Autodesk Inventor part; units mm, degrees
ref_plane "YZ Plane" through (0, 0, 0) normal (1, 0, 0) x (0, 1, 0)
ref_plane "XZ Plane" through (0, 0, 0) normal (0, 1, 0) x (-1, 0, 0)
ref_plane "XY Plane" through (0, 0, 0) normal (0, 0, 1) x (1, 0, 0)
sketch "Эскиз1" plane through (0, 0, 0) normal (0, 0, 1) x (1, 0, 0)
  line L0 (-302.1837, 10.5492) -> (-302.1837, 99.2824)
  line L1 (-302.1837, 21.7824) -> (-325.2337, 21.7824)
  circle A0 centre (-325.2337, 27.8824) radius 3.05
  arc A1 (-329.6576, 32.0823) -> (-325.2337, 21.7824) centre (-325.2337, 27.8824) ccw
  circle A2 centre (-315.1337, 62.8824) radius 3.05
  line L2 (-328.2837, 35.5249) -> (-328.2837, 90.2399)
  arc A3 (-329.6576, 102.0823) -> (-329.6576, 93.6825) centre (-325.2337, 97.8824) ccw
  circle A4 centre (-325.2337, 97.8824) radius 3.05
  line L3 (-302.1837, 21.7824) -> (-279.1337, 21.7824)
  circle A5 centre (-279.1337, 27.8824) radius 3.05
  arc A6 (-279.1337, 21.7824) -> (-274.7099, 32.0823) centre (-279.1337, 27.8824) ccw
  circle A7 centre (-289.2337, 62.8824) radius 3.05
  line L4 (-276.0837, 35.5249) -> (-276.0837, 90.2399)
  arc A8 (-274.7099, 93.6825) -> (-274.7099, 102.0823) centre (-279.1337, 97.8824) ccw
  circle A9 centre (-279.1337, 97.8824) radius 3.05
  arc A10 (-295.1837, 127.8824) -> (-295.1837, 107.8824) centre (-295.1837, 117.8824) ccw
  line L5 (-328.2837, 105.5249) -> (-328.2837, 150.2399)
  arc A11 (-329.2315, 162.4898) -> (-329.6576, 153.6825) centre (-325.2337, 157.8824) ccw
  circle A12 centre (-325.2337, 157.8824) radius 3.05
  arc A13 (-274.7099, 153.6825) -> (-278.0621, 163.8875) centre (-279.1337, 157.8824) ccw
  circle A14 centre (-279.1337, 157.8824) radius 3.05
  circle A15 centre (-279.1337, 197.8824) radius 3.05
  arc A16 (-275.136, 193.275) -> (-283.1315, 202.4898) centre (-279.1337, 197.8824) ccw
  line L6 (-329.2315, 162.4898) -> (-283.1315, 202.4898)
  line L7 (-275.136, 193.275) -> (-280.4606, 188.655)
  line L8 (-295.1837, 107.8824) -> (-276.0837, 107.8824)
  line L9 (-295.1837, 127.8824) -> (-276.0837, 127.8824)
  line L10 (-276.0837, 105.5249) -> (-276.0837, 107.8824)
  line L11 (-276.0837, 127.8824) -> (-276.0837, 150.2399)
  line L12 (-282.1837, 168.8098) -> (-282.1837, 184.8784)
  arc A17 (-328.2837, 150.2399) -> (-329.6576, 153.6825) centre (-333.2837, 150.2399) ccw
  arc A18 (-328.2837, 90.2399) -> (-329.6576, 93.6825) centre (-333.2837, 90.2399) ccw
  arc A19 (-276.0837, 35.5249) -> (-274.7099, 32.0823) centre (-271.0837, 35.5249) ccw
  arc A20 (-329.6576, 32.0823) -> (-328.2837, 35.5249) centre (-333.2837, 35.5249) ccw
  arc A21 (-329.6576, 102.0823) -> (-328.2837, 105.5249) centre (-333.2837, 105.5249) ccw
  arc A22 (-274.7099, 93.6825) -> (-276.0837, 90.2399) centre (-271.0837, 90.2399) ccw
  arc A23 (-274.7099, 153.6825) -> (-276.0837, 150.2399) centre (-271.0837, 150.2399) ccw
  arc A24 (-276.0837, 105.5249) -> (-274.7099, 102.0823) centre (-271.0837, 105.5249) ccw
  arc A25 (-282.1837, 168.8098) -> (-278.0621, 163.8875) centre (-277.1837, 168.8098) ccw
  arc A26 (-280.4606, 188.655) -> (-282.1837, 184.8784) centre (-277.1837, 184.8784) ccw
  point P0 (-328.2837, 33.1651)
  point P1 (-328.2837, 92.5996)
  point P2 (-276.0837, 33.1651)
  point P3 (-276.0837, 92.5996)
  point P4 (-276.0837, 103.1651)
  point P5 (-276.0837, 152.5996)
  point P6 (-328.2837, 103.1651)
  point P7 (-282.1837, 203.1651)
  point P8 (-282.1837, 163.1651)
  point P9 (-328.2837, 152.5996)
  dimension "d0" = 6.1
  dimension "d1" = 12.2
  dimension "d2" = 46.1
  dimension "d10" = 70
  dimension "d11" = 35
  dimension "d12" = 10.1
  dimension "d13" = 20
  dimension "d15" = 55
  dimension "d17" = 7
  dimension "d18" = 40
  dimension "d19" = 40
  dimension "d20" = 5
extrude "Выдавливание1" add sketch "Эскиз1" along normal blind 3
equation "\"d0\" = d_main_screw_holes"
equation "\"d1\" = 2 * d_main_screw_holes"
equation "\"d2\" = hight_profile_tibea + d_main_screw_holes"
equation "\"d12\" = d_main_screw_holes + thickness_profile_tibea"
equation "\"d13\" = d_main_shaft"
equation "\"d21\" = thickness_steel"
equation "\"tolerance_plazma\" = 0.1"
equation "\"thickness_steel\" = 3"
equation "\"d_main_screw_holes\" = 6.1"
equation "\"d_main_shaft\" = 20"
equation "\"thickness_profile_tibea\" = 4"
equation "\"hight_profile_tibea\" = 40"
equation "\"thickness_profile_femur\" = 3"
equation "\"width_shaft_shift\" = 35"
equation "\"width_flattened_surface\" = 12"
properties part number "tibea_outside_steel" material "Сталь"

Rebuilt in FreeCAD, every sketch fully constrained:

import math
import FreeCAD as App
import Part
import Sketcher
from FreeCAD import Vector
Q = App.Units.Quantity

doc = App.newDocument("Part")
params = doc.addObject("Spreadsheet::Sheet", "Params")
for row, (alias, value) in enumerate([
    ("sketch1_radius", "5 mm"),
    ("sketch1_radius2", "10 mm"),
    ("sketch1_diameter", "6.1 mm"),
    ("sketch1_radius3", "6.1 mm"),
    ("sketch1_width", "46.1 mm"),
    ("pad1_length", "3 mm"),
], start=1):
    params.set(f"A{row}", alias)
    params.set(f"B{row}", "=" + value)
    params.setAlias(f"B{row}", alias)

body = doc.addObject("PartDesign::Body", "Body")

# Sketch on XY plane
sketch1 = body.newObject("Sketcher::SketchObject", "Sketch")
sketch1.AttachmentSupport = (doc.getObject("XY_Plane"), [""])
sketch1.MapMode = "FlatFace"
sketch1.addGeometry(Part.LineSegment(Vector(-325.2337, 21.7824, 0), Vector(-279.1337, 21.7824, 0)), False)
sketch1.addGeometry(Part.ArcOfCircle(Part.Circle(Vector(-279.1337, 27.8824, 0), Vector(0, 0, 1), 6.1), math.radians(-90), math.radians(43.512745)), False)
sketch1.addGeometry(Part.ArcOfCircle(Part.Circle(Vector(-271.0837, 35.5249, 0), Vector(0, 0, 1), 5), math.radians(180), math.radians(223.512175)), False)
sketch1.addGeometry(Part.LineSegment(Vector(-276.0837, 35.5249, 0), Vector(-276.0837, 90.2399, 0)), False)
sketch1.addGeometry(Part.ArcOfCircle(Part.Circle(Vector(-271.0837, 90.2399, 0), Vector(0, 0, 1), 5.000082), math.radians(136.487825), math.radians(180)), False)
sketch1.addGeometry(Part.ArcOfCircle(Part.Circle(Vector(-279.1337, 97.8824, 0), Vector(0, 0, 1), 6.099932), math.radians(-43.512745), math.radians(43.512745)), False)
sketch1.addGeometry(Part.ArcOfCircle(Part.Circle(Vector(-271.0837, 105.5249, 0), Vector(0, 0, 1), 5), math.radians(180), math.radians(223.512175)), False)
sketch1.addGeometry(Part.LineSegment(Vector(-276.0837, 105.5249, 0), Vector(-276.0837, 107.8824, 0)), False)
sketch1.addGeometry(Part.LineSegment(Vector(-276.0837, 107.8824, 0), Vector(-295.1837, 107.8824, 0)), False)
sketch1.addGeometry(Part.ArcOfCircle(Part.Circle(Vector(-295.1837, 117.8824, 0), Vector(0, 0, 1), 10), math.radians(90), math.radians(270)), False)
sketch1.addGeometry(Part.LineSegment(Vector(-295.1837, 127.8824, 0), Vector(-276.0837, 127.8824, 0)), False)
sketch1.addGeometry(Part.LineSegment(Vector(-276.0837, 127.8824, 0), Vector(-276.0837, 150.2399, 0)), False)
sketch1.addGeometry(Part.ArcOfCircle(Part.Circle(Vector(-271.0837, 150.2399, 0), Vector(0, 0, 1), 5.000082), math.radians(136.487825), math.radians(180)), False)
sketch1.addGeometry(Part.ArcOfCircle(Part.Circle(Vector(-279.1337, 157.8824, 0), Vector(0, 0, 1), 6.099932), math.radians(-43.512745), math.radians(79.882164)), False)
sketch1.addGeometry(Part.ArcOfCircle(Part.Circle(Vector(-277.1837, 168.8098, 0), Vector(0, 0, 1), 5), math.radians(180), math.radians(259.881895)), False)
sketch1.addGeometry(Part.LineSegment(Vector(-282.1837, 168.8098, 0), Vector(-282.1837, 184.8784, 0)), False)
sketch1.addGeometry(Part.ArcOfCircle(Part.Circle(Vector(-277.1837, 184.8784, 0), Vector(0, 0, 1), 5.000078), math.radians(130.947693), math.radians(180)), False)
sketch1.addGeometry(Part.LineSegment(Vector(-280.4606, 188.655, 0), Vector(-275.136, 193.275, 0)), False)
sketch1.addGeometry(Part.ArcOfCircle(Part.Circle(Vector(-279.1337, 197.8824, 0), Vector(0, 0, 1), 6.099979), math.radians(-49.052824), math.radians(130.947886)), False)
sketch1.addGeometry(Part.LineSegment(Vector(-283.1315, 202.4898, 0), Vector(-329.2315, 162.4898, 0)), False)
sketch1.addGeometry(Part.ArcOfCircle(Part.Circle(Vector(-325.2337, 157.8824, 0), Vector(0, 0, 1), 6.100044), math.radians(130.947886), math.radians(223.512098)), False)
sketch1.addGeometry(Part.ArcOfCircle(Part.Circle(Vector(-333.2837, 150.2399, 0), Vector(0, 0, 1), 5), math.radians(0), math.radians(43.512964)), False)
sketch1.addGeometry(Part.LineSegment(Vector(-328.2837, 150.2399, 0), Vector(-328.2837, 105.5249, 0)), False)
sketch1.addGeometry(Part.ArcOfCircle(Part.Circle(Vector(-333.2837, 105.5249, 0), Vector(0, 0, 1), 5.00001), math.radians(-43.512964), math.radians(0)), False)
sketch1.addGeometry(Part.ArcOfCircle(Part.Circle(Vector(-325.2337, 97.8824, 0), Vector(0, 0, 1), 6.100004), math.radians(136.487902), math.radians(223.512098)), False)
sketch1.addGeometry(Part.ArcOfCircle(Part.Circle(Vector(-333.2837, 90.2399, 0), Vector(0, 0, 1), 5), math.radians(0), math.radians(43.512964)), False)
sketch1.addGeometry(Part.LineSegment(Vector(-328.2837, 90.2399, 0), Vector(-328.2837, 35.5249, 0)), False)
sketch1.addGeometry(Part.ArcOfCircle(Part.Circle(Vector(-333.2837, 35.5249, 0), Vector(0, 0, 1), 5.00001), math.radians(-43.512964), math.radians(0)), False)
sketch1.addGeometry(Part.ArcOfCircle(Part.Circle(Vector(-325.2337, 27.8824, 0), Vector(0, 0, 1), 6.100004), math.radians(136.487902), math.radians(270)), False)
sketch1.addGeometry(Part.Circle(Vector(-325.2337, 27.8824, 0), Vector(0, 0, 1), 3.05), False)
sketch1.addGeometry(Part.Circle(Vector(-315.1337, 62.8824, 0), Vector(0, 0, 1), 3.05), False)
sketch1.addGeometry(Part.Circle(Vector(-325.2337, 97.8824, 0), Vector(0, 0, 1), 3.05), False)
sketch1.addGeometry(Part.Circle(Vector(-289.2337, 62.8824, 0), Vector(0, 0, 1), 3.05), False)
sketch1.addGeometry(Part.Circle(Vector(-279.1337, 27.8824, 0), Vector(0, 0, 1), 3.05), False)
sketch1.addGeometry(Part.Circle(Vector(-279.1337, 97.8824, 0), Vector(0, 0, 1), 3.05), False)
sketch1.addGeometry(Part.Circle(Vector(-325.2337, 157.8824, 0), Vector(0, 0, 1), 3.05), False)
sketch1.addGeometry(Part.Circle(Vector(-279.1337, 157.8824, 0), Vector(0, 0, 1), 3.05), False)
sketch1.addGeometry(Part.Circle(Vector(-279.1337, 197.8824, 0), Vector(0, 0, 1), 3.05), False)
sketch1.addConstraint(Sketcher.Constraint("Tangent", 0, 2, 1, 1))
sketch1.addConstraint(Sketcher.Constraint("Tangent", 1, 2, 2, 2))
sketch1.addConstraint(Sketcher.Constraint("Tangent", 2, 1, 3, 1))
sketch1.addConstraint(Sketcher.Constraint("Tangent", 3, 2, 4, 2))
sketch1.addConstraint(Sketcher.Constraint("Tangent", 4, 1, 5, 1))
sketch1.addConstraint(Sketcher.Constraint("Tangent", 5, 2, 6, 2))
sketch1.addConstraint(Sketcher.Constraint("Tangent", 6, 1, 7, 1))
sketch1.addConstraint(Sketcher.Constraint("Coincident", 7, 2, 8, 1))
sketch1.addConstraint(Sketcher.Constraint("Tangent", 8, 2, 9, 2))
sketch1.addConstraint(Sketcher.Constraint("Tangent", 9, 1, 10, 1))
sketch1.addConstraint(Sketcher.Constraint("Coincident", 10, 2, 11, 1))
sketch1.addConstraint(Sketcher.Constraint("Tangent", 11, 2, 12, 2))
sketch1.addConstraint(Sketcher.Constraint("Tangent", 12, 1, 13, 1))
sketch1.addConstraint(Sketcher.Constraint("Tangent", 13, 2, 14, 2))
sketch1.addConstraint(Sketcher.Constraint("Tangent", 14, 1, 15, 1))
sketch1.addConstraint(Sketcher.Constraint("Tangent", 15, 2, 16, 2))
sketch1.addConstraint(Sketcher.Constraint("Tangent", 16, 1, 17, 1))
sketch1.addConstraint(Sketcher.Constraint("Tangent", 17, 2, 18, 1))
sketch1.addConstraint(Sketcher.Constraint("Tangent", 18, 2, 19, 1))
sketch1.addConstraint(Sketcher.Constraint("Tangent", 19, 2, 20, 1))
sketch1.addConstraint(Sketcher.Constraint("Tangent", 20, 2, 21, 2))
sketch1.addConstraint(Sketcher.Constraint("Tangent", 21, 1, 22, 1))
sketch1.addConstraint(Sketcher.Constraint("Tangent", 22, 2, 23, 2))
sketch1.addConstraint(Sketcher.Constraint("Tangent", 23, 1, 24, 1))
sketch1.addConstraint(Sketcher.Constraint("Tangent", 24, 2, 25, 2))
sketch1.addConstraint(Sketcher.Constraint("Tangent", 25, 1, 26, 1))
sketch1.addConstraint(Sketcher.Constraint("Tangent", 26, 2, 27, 2))
sketch1.addConstraint(Sketcher.Constraint("Tangent", 27, 1, 28, 1))
sketch1.addConstraint(Sketcher.Constraint("Tangent", 28, 2, 0, 1))
sketch1.addConstraint(Sketcher.Constraint("Horizontal", 0))
sketch1.addConstraint(Sketcher.Constraint("Vertical", 3))
sketch1.addConstraint(Sketcher.Constraint("Vertical", 7))
sketch1.addConstraint(Sketcher.Constraint("Horizontal", 8))
sketch1.addConstraint(Sketcher.Constraint("Horizontal", 10))
sketch1.addConstraint(Sketcher.Constraint("Vertical", 11))
sketch1.addConstraint(Sketcher.Constraint("Vertical", 15))
sketch1.addConstraint(Sketcher.Constraint("Vertical", 22))
sketch1.addConstraint(Sketcher.Constraint("Vertical", 26))
sketch1.addConstraint(Sketcher.Constraint("Coincident", 29, 3, 28, 3))
sketch1.addConstraint(Sketcher.Constraint("Coincident", 31, 3, 24, 3))
sketch1.addConstraint(Sketcher.Constraint("Coincident", 33, 3, 1, 3))
sketch1.addConstraint(Sketcher.Constraint("Coincident", 34, 3, 5, 3))
sketch1.addConstraint(Sketcher.Constraint("Coincident", 35, 3, 20, 3))
sketch1.addConstraint(Sketcher.Constraint("Coincident", 36, 3, 13, 3))
sketch1.addConstraint(Sketcher.Constraint("Coincident", 37, 3, 18, 3))
sketch1.addConstraint(Sketcher.Constraint("Equal", 2, 4))
sketch1.addConstraint(Sketcher.Constraint("Equal", 1, 5))
sketch1.addConstraint(Sketcher.Constraint("Equal", 4, 6))
sketch1.addConstraint(Sketcher.Constraint("Equal", 6, 12))
sketch1.addConstraint(Sketcher.Constraint("Equal", 5, 13))
sketch1.addConstraint(Sketcher.Constraint("Equal", 12, 14))
sketch1.addConstraint(Sketcher.Constraint("Equal", 14, 16))
sketch1.addConstraint(Sketcher.Constraint("Equal", 13, 18))
sketch1.addConstraint(Sketcher.Constraint("Equal", 18, 20))
sketch1.addConstraint(Sketcher.Constraint("Equal", 16, 21))
sketch1.addConstraint(Sketcher.Constraint("Equal", 21, 23))
sketch1.addConstraint(Sketcher.Constraint("Equal", 20, 24))
sketch1.addConstraint(Sketcher.Constraint("Equal", 23, 25))
sketch1.addConstraint(Sketcher.Constraint("Equal", 25, 27))
sketch1.addConstraint(Sketcher.Constraint("Equal", 24, 28))
sketch1.addConstraint(Sketcher.Constraint("Equal", 29, 30))
sketch1.addConstraint(Sketcher.Constraint("Equal", 30, 31))
sketch1.addConstraint(Sketcher.Constraint("Equal", 31, 32))
sketch1.addConstraint(Sketcher.Constraint("Equal", 32, 33))
sketch1.addConstraint(Sketcher.Constraint("Equal", 33, 34))
sketch1.addConstraint(Sketcher.Constraint("Equal", 34, 35))
sketch1.addConstraint(Sketcher.Constraint("Equal", 35, 36))
sketch1.addConstraint(Sketcher.Constraint("Equal", 36, 37))
sketch1.addConstraint(Sketcher.Constraint("Parallel", 17, 19))
sketch1.addConstraint(Sketcher.Constraint("Horizontal", 13, 3, 20, 3))
sketch1.addConstraint(Sketcher.Constraint("Horizontal", 12, 3, 21, 3))
sketch1.addConstraint(Sketcher.Constraint("Horizontal", 6, 3, 23, 3))
sketch1.addConstraint(Sketcher.Constraint("Horizontal", 5, 3, 24, 3))
sketch1.addConstraint(Sketcher.Constraint("Horizontal", 4, 3, 25, 3))
sketch1.addConstraint(Sketcher.Constraint("Horizontal", 2, 3, 27, 3))
sketch1.addConstraint(Sketcher.Constraint("Horizontal", 30, 3, 32, 3))
sketch1.addConstraint(Sketcher.Constraint("Vertical", 1, 3, 5, 3))
sketch1.addConstraint(Sketcher.Constraint("Vertical", 4, 3, 6, 3))
sketch1.addConstraint(Sketcher.Constraint("Vertical", 6, 3, 12, 3))
sketch1.addConstraint(Sketcher.Constraint("Vertical", 5, 3, 13, 3))
sketch1.addConstraint(Sketcher.Constraint("Vertical", 13, 3, 18, 3))
sketch1.addConstraint(Sketcher.Constraint("Radius", 2, Q("5 mm")))
sketch1.addConstraint(Sketcher.Constraint("Radius", 9, Q("10 mm")))
sketch1.addConstraint(Sketcher.Constraint("Diameter", 29, Q("6.1 mm")))
sketch1.addConstraint(Sketcher.Constraint("Radius", 1, Q("6.1 mm")))
sketch1.addConstraint(Sketcher.Constraint("DistanceX", 0, 1, 0, 2, Q("46.1 mm")))
sketch1.addConstraint(Sketcher.Constraint("DistanceY", 1, 3, 5, 3, Q("70 mm")))
sketch1.addConstraint(Sketcher.Constraint("DistanceY", 5, 3, 9, 3, Q("20 mm")))
sketch1.addConstraint(Sketcher.Constraint("DistanceY", 9, 3, 13, 3, Q("40 mm")))
sketch1.addConstraint(Sketcher.Constraint("DistanceY", 13, 3, 18, 3, Q("40 mm")))
sketch1.addConstraint(Sketcher.Constraint("DistanceY", 28, 3, 30, 3, Q("35 mm")))
sketch1.addConstraint(Sketcher.Constraint("DistanceX", 14, 3, 12, 3, Q("6.1 mm")))
sketch1.addConstraint(Sketcher.Constraint("DistanceX", 28, 3, 30, 3, Q("10.1 mm")))
sketch1.addConstraint(Sketcher.Constraint("DistanceX", 32, 3, 1, 3, Q("10.1 mm")))
sketch1.addConstraint(Sketcher.Constraint("DistanceX", 8, 2, 8, 1, Q("19.1 mm")))
sketch1.addConstraint(Sketcher.Constraint("DistanceX", 21, 3, 9, 3, Q("38.1 mm")))
sketch1.addConstraint(Sketcher.Constraint("DistanceY", -1, 1, 4, 3, Q("90.24 mm")))
sketch1.addConstraint(Sketcher.Constraint("DistanceX", 4, 1, -1, 1, Q("274.71 mm")))
sketch1.setExpression("Constraints[81]", "Params.sketch1_radius")
sketch1.setExpression("Constraints[82]", "Params.sketch1_radius2")
sketch1.setExpression("Constraints[83]", "Params.sketch1_diameter")
sketch1.setExpression("Constraints[84]", "Params.sketch1_radius3")
sketch1.setExpression("Constraints[85]", "Params.sketch1_width")
pad1 = body.newObject("PartDesign::Pad", "Pad")
pad1.Profile = sketch1
pad1.setExpression("Length", "Params.pad1_length")

doc.recompute()
